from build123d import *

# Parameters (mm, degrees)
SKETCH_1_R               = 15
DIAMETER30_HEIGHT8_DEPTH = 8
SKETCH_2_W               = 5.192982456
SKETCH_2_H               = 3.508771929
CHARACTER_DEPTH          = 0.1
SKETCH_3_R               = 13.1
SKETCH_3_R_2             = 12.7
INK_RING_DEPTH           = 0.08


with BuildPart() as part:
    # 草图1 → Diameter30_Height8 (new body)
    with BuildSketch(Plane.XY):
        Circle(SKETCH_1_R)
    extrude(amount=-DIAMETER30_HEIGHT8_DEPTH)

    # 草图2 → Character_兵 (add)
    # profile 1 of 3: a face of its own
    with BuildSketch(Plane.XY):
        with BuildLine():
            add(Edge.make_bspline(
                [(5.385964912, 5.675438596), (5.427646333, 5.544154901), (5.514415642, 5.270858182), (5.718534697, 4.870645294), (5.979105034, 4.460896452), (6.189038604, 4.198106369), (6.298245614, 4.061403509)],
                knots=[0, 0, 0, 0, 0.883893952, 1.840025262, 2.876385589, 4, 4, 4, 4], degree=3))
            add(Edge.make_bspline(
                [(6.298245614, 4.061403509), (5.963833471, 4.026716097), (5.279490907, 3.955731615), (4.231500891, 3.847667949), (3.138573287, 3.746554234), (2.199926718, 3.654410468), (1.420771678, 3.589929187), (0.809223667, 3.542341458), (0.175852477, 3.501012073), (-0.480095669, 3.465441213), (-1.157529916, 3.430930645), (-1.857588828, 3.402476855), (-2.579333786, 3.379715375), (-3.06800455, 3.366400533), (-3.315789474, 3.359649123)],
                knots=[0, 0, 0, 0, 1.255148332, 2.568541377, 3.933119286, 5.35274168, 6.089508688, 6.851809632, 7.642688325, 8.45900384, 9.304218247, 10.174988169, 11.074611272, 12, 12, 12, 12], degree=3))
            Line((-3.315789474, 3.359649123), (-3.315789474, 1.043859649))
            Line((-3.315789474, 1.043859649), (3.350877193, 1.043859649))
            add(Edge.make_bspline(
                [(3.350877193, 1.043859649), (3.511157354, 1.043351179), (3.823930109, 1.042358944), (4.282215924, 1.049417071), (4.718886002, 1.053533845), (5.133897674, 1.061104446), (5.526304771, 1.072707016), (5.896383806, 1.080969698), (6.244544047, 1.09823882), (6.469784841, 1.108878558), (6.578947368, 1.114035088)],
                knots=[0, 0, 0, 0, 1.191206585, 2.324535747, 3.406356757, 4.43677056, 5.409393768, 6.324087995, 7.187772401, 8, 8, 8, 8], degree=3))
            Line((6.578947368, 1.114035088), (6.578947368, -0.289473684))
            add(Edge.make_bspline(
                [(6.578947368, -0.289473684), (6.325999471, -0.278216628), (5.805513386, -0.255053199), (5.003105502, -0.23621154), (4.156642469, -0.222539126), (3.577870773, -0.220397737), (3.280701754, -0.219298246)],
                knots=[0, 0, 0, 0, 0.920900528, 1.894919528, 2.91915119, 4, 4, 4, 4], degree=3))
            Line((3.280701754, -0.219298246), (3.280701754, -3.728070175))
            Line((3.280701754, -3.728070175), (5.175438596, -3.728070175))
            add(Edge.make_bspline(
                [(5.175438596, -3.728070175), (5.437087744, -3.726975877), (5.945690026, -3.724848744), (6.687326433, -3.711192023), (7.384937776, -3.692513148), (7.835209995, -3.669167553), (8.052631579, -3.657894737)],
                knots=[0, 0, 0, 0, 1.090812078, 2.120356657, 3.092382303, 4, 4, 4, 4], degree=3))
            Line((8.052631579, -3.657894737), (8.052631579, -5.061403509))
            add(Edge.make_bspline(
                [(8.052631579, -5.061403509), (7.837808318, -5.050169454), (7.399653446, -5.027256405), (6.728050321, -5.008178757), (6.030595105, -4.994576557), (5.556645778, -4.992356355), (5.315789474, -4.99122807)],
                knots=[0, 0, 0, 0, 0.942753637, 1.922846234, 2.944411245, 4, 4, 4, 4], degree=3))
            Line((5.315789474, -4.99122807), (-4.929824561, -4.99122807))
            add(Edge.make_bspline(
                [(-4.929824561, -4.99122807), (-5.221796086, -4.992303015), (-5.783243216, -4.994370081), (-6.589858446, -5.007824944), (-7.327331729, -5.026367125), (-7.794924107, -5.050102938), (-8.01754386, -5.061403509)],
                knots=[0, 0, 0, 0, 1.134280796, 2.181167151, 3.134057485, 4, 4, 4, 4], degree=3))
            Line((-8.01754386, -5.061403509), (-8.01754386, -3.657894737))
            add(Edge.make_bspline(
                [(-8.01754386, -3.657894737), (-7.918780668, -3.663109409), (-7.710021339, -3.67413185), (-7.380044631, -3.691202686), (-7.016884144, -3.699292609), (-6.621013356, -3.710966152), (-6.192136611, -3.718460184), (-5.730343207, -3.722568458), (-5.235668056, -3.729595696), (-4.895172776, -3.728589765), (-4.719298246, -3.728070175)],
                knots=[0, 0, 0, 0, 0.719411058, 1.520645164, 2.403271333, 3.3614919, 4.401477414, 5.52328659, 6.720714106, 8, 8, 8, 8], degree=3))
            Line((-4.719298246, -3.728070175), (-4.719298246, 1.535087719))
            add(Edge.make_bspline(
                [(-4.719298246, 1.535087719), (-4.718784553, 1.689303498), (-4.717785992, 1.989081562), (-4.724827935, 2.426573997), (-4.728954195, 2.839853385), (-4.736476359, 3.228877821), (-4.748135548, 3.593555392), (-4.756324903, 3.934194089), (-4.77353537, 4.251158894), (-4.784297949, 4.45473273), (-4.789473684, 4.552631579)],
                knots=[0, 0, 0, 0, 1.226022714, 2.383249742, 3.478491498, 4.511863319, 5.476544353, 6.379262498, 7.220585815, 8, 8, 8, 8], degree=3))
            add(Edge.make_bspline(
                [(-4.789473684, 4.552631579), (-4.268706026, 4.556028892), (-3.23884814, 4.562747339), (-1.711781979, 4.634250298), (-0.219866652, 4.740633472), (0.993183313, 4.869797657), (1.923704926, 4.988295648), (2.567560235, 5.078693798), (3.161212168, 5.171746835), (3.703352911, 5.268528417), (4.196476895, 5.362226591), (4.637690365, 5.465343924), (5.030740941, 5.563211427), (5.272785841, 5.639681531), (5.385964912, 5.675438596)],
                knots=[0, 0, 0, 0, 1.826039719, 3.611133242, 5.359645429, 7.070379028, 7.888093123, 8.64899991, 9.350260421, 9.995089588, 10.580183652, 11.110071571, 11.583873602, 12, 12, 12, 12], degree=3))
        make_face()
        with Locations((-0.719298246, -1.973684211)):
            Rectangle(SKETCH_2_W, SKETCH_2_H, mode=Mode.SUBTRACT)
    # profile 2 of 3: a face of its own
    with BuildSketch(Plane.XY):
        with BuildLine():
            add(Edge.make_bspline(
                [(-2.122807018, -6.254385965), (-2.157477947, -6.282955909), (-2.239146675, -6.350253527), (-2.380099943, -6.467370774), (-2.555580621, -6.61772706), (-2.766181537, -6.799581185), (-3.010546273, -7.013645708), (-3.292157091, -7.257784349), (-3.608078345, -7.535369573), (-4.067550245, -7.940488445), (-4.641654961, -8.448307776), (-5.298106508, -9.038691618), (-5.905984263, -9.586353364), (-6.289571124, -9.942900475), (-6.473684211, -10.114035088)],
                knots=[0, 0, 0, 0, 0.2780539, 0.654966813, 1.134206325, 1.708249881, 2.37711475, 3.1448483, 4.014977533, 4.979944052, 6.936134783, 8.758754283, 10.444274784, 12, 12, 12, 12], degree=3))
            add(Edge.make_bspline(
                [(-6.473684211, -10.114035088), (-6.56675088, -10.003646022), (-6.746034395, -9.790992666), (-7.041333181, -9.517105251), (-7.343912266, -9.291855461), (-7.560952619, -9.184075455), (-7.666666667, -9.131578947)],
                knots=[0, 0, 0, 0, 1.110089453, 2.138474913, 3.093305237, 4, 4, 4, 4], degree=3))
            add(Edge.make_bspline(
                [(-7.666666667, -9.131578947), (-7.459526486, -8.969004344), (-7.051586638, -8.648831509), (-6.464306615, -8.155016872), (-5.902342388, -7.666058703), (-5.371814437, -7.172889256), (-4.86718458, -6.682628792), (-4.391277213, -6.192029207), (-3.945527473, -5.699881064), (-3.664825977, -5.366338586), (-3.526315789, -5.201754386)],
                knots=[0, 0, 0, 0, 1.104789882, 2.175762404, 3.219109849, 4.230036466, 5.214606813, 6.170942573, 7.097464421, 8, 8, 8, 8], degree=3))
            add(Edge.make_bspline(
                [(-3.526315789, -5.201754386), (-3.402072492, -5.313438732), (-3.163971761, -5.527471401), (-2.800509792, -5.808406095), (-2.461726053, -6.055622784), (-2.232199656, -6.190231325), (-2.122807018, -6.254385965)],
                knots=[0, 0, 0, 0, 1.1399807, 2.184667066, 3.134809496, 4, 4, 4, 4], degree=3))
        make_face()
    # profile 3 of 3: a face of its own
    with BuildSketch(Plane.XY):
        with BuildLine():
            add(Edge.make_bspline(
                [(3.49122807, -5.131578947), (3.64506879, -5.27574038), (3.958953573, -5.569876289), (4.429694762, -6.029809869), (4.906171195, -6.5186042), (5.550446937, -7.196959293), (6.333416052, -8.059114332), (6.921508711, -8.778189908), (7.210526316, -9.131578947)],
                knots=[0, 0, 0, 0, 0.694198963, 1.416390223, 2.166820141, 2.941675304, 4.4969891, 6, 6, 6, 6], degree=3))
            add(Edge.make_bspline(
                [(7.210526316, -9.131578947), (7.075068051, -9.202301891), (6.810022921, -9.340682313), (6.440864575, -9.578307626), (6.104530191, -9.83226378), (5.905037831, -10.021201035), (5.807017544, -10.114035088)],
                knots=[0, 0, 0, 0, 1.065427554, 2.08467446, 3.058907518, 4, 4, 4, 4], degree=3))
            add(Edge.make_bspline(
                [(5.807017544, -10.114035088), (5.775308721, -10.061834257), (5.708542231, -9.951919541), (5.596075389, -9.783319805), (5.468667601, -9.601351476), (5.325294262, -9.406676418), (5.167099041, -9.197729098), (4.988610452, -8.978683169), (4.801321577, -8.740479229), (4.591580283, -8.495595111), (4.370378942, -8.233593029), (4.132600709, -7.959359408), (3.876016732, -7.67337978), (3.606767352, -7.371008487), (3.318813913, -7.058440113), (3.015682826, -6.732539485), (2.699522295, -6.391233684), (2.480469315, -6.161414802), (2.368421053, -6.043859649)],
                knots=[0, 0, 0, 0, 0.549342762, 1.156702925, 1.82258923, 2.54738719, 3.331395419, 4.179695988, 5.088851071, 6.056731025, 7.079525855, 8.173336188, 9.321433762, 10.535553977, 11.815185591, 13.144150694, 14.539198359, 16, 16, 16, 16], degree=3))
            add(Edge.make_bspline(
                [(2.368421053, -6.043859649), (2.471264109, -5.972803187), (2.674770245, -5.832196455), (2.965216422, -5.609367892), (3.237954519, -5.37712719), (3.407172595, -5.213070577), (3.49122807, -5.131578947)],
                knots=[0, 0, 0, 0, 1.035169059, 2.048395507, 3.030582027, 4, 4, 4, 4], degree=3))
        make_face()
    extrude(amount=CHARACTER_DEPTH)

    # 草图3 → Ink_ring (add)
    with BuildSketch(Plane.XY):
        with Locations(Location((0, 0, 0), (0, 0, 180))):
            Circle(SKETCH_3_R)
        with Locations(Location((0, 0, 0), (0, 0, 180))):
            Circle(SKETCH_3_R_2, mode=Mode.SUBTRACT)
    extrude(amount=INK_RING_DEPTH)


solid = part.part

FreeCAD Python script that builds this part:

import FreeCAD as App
import Part
import Sketcher
Q = App.Units.Quantity

doc = App.newDocument("Part")
params = doc.addObject("Spreadsheet::Sheet", "Params")
for row, (alias, value) in enumerate([
    ("sketch1_diameter", "30 mm"),
    ("pad1_length", "8 mm"),
    ("pad2_length", "0.1 mm"),
    ("sketch3_diameter", "26.2 mm"),
    ("sketch3_diameter2", "25.4 mm"),
    ("pad3_length", "0.08 mm"),
], start=1):
    params.set(f"A{row}", alias)
    params.set(f"B{row}", "=" + value)
    params.setAlias(f"B{row}", alias)

body = doc.addObject("PartDesign::Body", "Body")

# Sketch on XY plane
sketch1 = doc.addObject("Sketcher::SketchObject", "Sketch")
body.addObject(sketch1)
sketch1.AttachmentSupport = (doc.XY_Plane, [""])
sketch1.MapMode = "FlatFace"
sketch1.addGeometry(Part.Circle(App.Vector(0, 0, 0), App.Vector(0, 0, 1), 15), False)
sketch1.addConstraint([
    Sketcher.Constraint("Coincident", 0, 3, -1, 1),
    Sketcher.Constraint("Diameter", 0, Q("30 mm")),
])
sketch1.setExpression("Constraints[1]", "Params.sketch1_diameter")
pad1 = doc.addObject("PartDesign::Pad", "Pad")
body.addObject(pad1)
pad1.Profile = sketch1
pad1.setExpression("Length", "Params.pad1_length")
pad1.Reversed = True

# Sketch on XY plane
sketch2 = doc.addObject("Sketcher::SketchObject", "Sketch001")
body.addObject(sketch2)
sketch2.AttachmentSupport = (doc.XY_Plane, [""])
sketch2.MapMode = "FlatFace"
sketch2.addGeometry([
    Part.BSplineCurve([App.Vector(5.385965, 5.675439, 0), App.Vector(5.427646, 5.544155, 0), App.Vector(5.514416, 5.270858, 0), App.Vector(5.718535, 4.870645, 0), App.Vector(5.979105, 4.460896, 0), App.Vector(6.189039, 4.198106, 0), App.Vector(6.298246, 4.061404, 0)], [4, 1, 1, 1, 4], [0, 0.883893952, 1.840025262, 2.876385589, 4], False, 3, [1, 1, 1, 1, 1, 1, 1], False),  # 0
    Part.BSplineCurve([App.Vector(-4.789474, 4.552632, 0), App.Vector(-4.268706, 4.556029, 0), App.Vector(-3.238848, 4.562747, 0), App.Vector(-1.711782, 4.63425, 0), App.Vector(-0.219867, 4.740633, 0), App.Vector(0.993183, 4.869798, 0), App.Vector(1.923705, 4.988296, 0), App.Vector(2.56756, 5.078694, 0), App.Vector(3.161212, 5.171747, 0), App.Vector(3.703353, 5.268528, 0), App.Vector(4.196477, 5.362227, 0), App.Vector(4.63769, 5.465344, 0), App.Vector(5.030741, 5.563211, 0), App.Vector(5.272786, 5.639682, 0), App.Vector(5.385965, 5.675439, 0)], [4, 1, 1, 1, 1, 1, 1, 1, 1, 1, 1, 1, 4], [0, 1.826039719, 3.611133242, 5.359645429, 7.070379028, 7.888093123, 8.64899991, 9.350260421, 9.995089588, 10.580183652, 11.110071571, 11.583873602, 12], False, 3, [1, 1, 1, 1, 1, 1, 1, 1, 1, 1, 1, 1, 1, 1, 1], False),  # 1
    Part.BSplineCurve([App.Vector(-4.719298, 1.535088, 0), App.Vector(-4.718785, 1.689303, 0), App.Vector(-4.717786, 1.989082, 0), App.Vector(-4.724828, 2.426574, 0), App.Vector(-4.728954, 2.839853, 0), App.Vector(-4.736476, 3.228878, 0), App.Vector(-4.748136, 3.593555, 0), App.Vector(-4.756325, 3.934194, 0), App.Vector(-4.773535, 4.251159, 0), App.Vector(-4.784298, 4.454733, 0), App.Vector(-4.789474, 4.552632, 0)], [4, 1, 1, 1, 1, 1, 1, 1, 4], [0, 1.226022714, 2.383249742, 3.478491498, 4.511863319, 5.476544353, 6.379262498, 7.220585815, 8], False, 3, [1, 1, 1, 1, 1, 1, 1, 1, 1, 1, 1], False),  # 2
    Part.LineSegment(App.Vector(-4.719298, 1.535088, 0), App.Vector(-4.719298, -3.72807, 0)),  # 3
    Part.BSplineCurve([App.Vector(-8.017544, -3.657895, 0), App.Vector(-7.918781, -3.663109, 0), App.Vector(-7.710021, -3.674132, 0), App.Vector(-7.380045, -3.691203, 0), App.Vector(-7.016884, -3.699293, 0), App.Vector(-6.621013, -3.710966, 0), App.Vector(-6.192137, -3.71846, 0), App.Vector(-5.730343, -3.722568, 0), App.Vector(-5.235668, -3.729596, 0), App.Vector(-4.895173, -3.72859, 0), App.Vector(-4.719298, -3.72807, 0)], [4, 1, 1, 1, 1, 1, 1, 1, 4], [0, 0.719411058, 1.520645164, 2.403271333, 3.3614919, 4.401477414, 5.52328659, 6.720714106, 8], False, 3, [1, 1, 1, 1, 1, 1, 1, 1, 1, 1, 1], False),  # 4
    Part.LineSegment(App.Vector(-8.017544, -3.657895, 0), App.Vector(-8.017544, -5.061404, 0)),  # 5
    Part.BSplineCurve([App.Vector(-4.929825, -4.991228, 0), App.Vector(-5.221796, -4.992303, 0), App.Vector(-5.783243, -4.99437, 0), App.Vector(-6.589858, -5.007825, 0), App.Vector(-7.327332, -5.026367, 0), App.Vector(-7.794924, -5.050103, 0), App.Vector(-8.017544, -5.061404, 0)], [4, 1, 1, 1, 4], [0, 1.134280796, 2.181167151, 3.134057485, 4], False, 3, [1, 1, 1, 1, 1, 1, 1], False),  # 6
    Part.LineSegment(App.Vector(-4.929825, -4.991228, 0), App.Vector(5.315789, -4.991228, 0)),  # 7
    Part.BSplineCurve([App.Vector(8.052632, -5.061404, 0), App.Vector(7.837808, -5.050169, 0), App.Vector(7.399653, -5.027256, 0), App.Vector(6.72805, -5.008179, 0), App.Vector(6.030595, -4.994577, 0), App.Vector(5.556646, -4.992356, 0), App.Vector(5.315789, -4.991228, 0)], [4, 1, 1, 1, 4], [0, 0.942753637, 1.922846234, 2.944411245, 4], False, 3, [1, 1, 1, 1, 1, 1, 1], False),  # 8
    Part.LineSegment(App.Vector(8.052632, -5.061404, 0), App.Vector(8.052632, -3.657895, 0)),  # 9
    Part.BSplineCurve([App.Vector(5.175439, -3.72807, 0), App.Vector(5.437088, -3.726976, 0), App.Vector(5.94569, -3.724849, 0), App.Vector(6.687326, -3.711192, 0), App.Vector(7.384938, -3.692513, 0), App.Vector(7.83521, -3.669168, 0), App.Vector(8.052632, -3.657895, 0)], [4, 1, 1, 1, 4], [0, 1.090812078, 2.120356657, 3.092382303, 4], False, 3, [1, 1, 1, 1, 1, 1, 1], False),  # 10
    Part.LineSegment(App.Vector(5.175439, -3.72807, 0), App.Vector(3.280702, -3.72807, 0)),  # 11
    Part.LineSegment(App.Vector(3.280702, -3.72807, 0), App.Vector(3.280702, -0.219298, 0)),  # 12
    Part.BSplineCurve([App.Vector(6.578947, -0.289474, 0), App.Vector(6.325999, -0.278217, 0), App.Vector(5.805513, -0.255053, 0), App.Vector(5.003106, -0.236212, 0), App.Vector(4.156642, -0.222539, 0), App.Vector(3.577871, -0.220398, 0), App.Vector(3.280702, -0.219298, 0)], [4, 1, 1, 1, 4], [0, 0.920900528, 1.894919528, 2.91915119, 4], False, 3, [1, 1, 1, 1, 1, 1, 1], False),  # 13
    Part.LineSegment(App.Vector(6.578947, -0.289474, 0), App.Vector(6.578947, 1.114035, 0)),  # 14
    Part.BSplineCurve([App.Vector(3.350877, 1.04386, 0), App.Vector(3.511157, 1.043351, 0), App.Vector(3.82393, 1.042359, 0), App.Vector(4.282216, 1.049417, 0), App.Vector(4.718886, 1.053534, 0), App.Vector(5.133898, 1.061104, 0), App.Vector(5.526305, 1.072707, 0), App.Vector(5.896384, 1.08097, 0), App.Vector(6.244544, 1.098239, 0), App.Vector(6.469785, 1.108879, 0), App.Vector(6.578947, 1.114035, 0)], [4, 1, 1, 1, 1, 1, 1, 1, 4], [0, 1.191206585, 2.324535747, 3.406356757, 4.43677056, 5.409393768, 6.324087995, 7.187772401, 8], False, 3, [1, 1, 1, 1, 1, 1, 1, 1, 1, 1, 1], False),  # 15
    Part.LineSegment(App.Vector(3.350877, 1.04386, 0), App.Vector(-3.315789, 1.04386, 0)),  # 16
    Part.LineSegment(App.Vector(-3.315789, 1.04386, 0), App.Vector(-3.315789, 3.359649, 0)),  # 17
    Part.BSplineCurve([App.Vector(6.298246, 4.061404, 0), App.Vector(5.963833, 4.026716, 0), App.Vector(5.279491, 3.955732, 0), App.Vector(4.231501, 3.847668, 0), App.Vector(3.138573, 3.746554, 0), App.Vector(2.199927, 3.65441, 0), App.Vector(1.420772, 3.589929, 0), App.Vector(0.809224, 3.542341, 0), App.Vector(0.175852, 3.501012, 0), App.Vector(-0.480096, 3.465441, 0), App.Vector(-1.15753, 3.430931, 0), App.Vector(-1.857589, 3.402477, 0), App.Vector(-2.579334, 3.379715, 0), App.Vector(-3.068005, 3.366401, 0), App.Vector(-3.315789, 3.359649, 0)], [4, 1, 1, 1, 1, 1, 1, 1, 1, 1, 1, 1, 4], [0, 1.255148332, 2.568541377, 3.933119286, 5.35274168, 6.089508688, 6.851809632, 7.642688325, 8.45900384, 9.304218247, 10.174988169, 11.074611272, 12], False, 3, [1, 1, 1, 1, 1, 1, 1, 1, 1, 1, 1, 1, 1, 1, 1], False),  # 18
    Part.LineSegment(App.Vector(-3.315789, -3.72807, 0), App.Vector(-3.315789, -0.219298, 0)),  # 19
    Part.LineSegment(App.Vector(-3.315789, -0.219298, 0), App.Vector(1.877193, -0.219298, 0)),  # 20
    Part.LineSegment(App.Vector(1.877193, -0.219298, 0), App.Vector(1.877193, -3.72807, 0)),  # 21
    Part.LineSegment(App.Vector(1.877193, -3.72807, 0), App.Vector(-3.315789, -3.72807, 0)),  # 22
    Part.BSplineCurve([App.Vector(-2.122807, -6.254386, 0), App.Vector(-2.157478, -6.282956, 0), App.Vector(-2.239147, -6.350254, 0), App.Vector(-2.3801, -6.467371, 0), App.Vector(-2.555581, -6.617727, 0), App.Vector(-2.766182, -6.799581, 0), App.Vector(-3.010546, -7.013646, 0), App.Vector(-3.292157, -7.257784, 0), App.Vector(-3.608078, -7.53537, 0), App.Vector(-4.06755, -7.940488, 0), App.Vector(-4.641655, -8.448308, 0), App.Vector(-5.298107, -9.038692, 0), App.Vector(-5.905984, -9.586353, 0), App.Vector(-6.289571, -9.9429, 0), App.Vector(-6.473684, -10.114035, 0)], [4, 1, 1, 1, 1, 1, 1, 1, 1, 1, 1, 1, 4], [0, 0.2780539, 0.654966813, 1.134206325, 1.708249881, 2.37711475, 3.1448483, 4.014977533, 4.979944052, 6.936134783, 8.758754283, 10.444274784, 12], False, 3, [1, 1, 1, 1, 1, 1, 1, 1, 1, 1, 1, 1, 1, 1, 1], False),  # 23
    Part.BSplineCurve([App.Vector(-3.526316, -5.201754, 0), App.Vector(-3.402072, -5.313439, 0), App.Vector(-3.163972, -5.527471, 0), App.Vector(-2.80051, -5.808406, 0), App.Vector(-2.461726, -6.055623, 0), App.Vector(-2.2322, -6.190231, 0), App.Vector(-2.122807, -6.254386, 0)], [4, 1, 1, 1, 4], [0, 1.1399807, 2.184667066, 3.134809496, 4], False, 3, [1, 1, 1, 1, 1, 1, 1], False),  # 24
    Part.BSplineCurve([App.Vector(-7.666667, -9.131579, 0), App.Vector(-7.459526, -8.969004, 0), App.Vector(-7.051587, -8.648832, 0), App.Vector(-6.464307, -8.155017, 0), App.Vector(-5.902342, -7.666059, 0), App.Vector(-5.371814, -7.172889, 0), App.Vector(-4.867185, -6.682629, 0), App.Vector(-4.391277, -6.192029, 0), App.Vector(-3.945527, -5.699881, 0), App.Vector(-3.664826, -5.366339, 0), App.Vector(-3.526316, -5.201754, 0)], [4, 1, 1, 1, 1, 1, 1, 1, 4], [0, 1.104789882, 2.175762404, 3.219109849, 4.230036466, 5.214606813, 6.170942573, 7.097464421, 8], False, 3, [1, 1, 1, 1, 1, 1, 1, 1, 1, 1, 1], False),  # 25
    Part.BSplineCurve([App.Vector(-6.473684, -10.114035, 0), App.Vector(-6.566751, -10.003646, 0), App.Vector(-6.746034, -9.790993, 0), App.Vector(-7.041333, -9.517105, 0), App.Vector(-7.343912, -9.291855, 0), App.Vector(-7.560953, -9.184075, 0), App.Vector(-7.666667, -9.131579, 0)], [4, 1, 1, 1, 4], [0, 1.110089453, 2.138474913, 3.093305237, 4], False, 3, [1, 1, 1, 1, 1, 1, 1], False),  # 26
    Part.BSplineCurve([App.Vector(3.491228, -5.131579, 0), App.Vector(3.645069, -5.27574, 0), App.Vector(3.958954, -5.569876, 0), App.Vector(4.429695, -6.02981, 0), App.Vector(4.906171, -6.518604, 0), App.Vector(5.550447, -7.196959, 0), App.Vector(6.333416, -8.059114, 0), App.Vector(6.921509, -8.77819, 0), App.Vector(7.210526, -9.131579, 0)], [4, 1, 1, 1, 1, 1, 4], [0, 0.694198963, 1.416390223, 2.166820141, 2.941675304, 4.4969891, 6], False, 3, [1, 1, 1, 1, 1, 1, 1, 1, 1], False),  # 27
    Part.BSplineCurve([App.Vector(2.368421, -6.04386, 0), App.Vector(2.471264, -5.972803, 0), App.Vector(2.67477, -5.832196, 0), App.Vector(2.965216, -5.609368, 0), App.Vector(3.237955, -5.377127, 0), App.Vector(3.407173, -5.213071, 0), App.Vector(3.491228, -5.131579, 0)], [4, 1, 1, 1, 4], [0, 1.035169059, 2.048395507, 3.030582027, 4], False, 3, [1, 1, 1, 1, 1, 1, 1], False),  # 28
    Part.BSplineCurve([App.Vector(5.807018, -10.114035, 0), App.Vector(5.775309, -10.061834, 0), App.Vector(5.708542, -9.95192, 0), App.Vector(5.596075, -9.78332, 0), App.Vector(5.468668, -9.601351, 0), App.Vector(5.325294, -9.406676, 0), App.Vector(5.167099, -9.197729, 0), App.Vector(4.98861, -8.978683, 0), App.Vector(4.801322, -8.740479, 0), App.Vector(4.59158, -8.495595, 0), App.Vector(4.370379, -8.233593, 0), App.Vector(4.132601, -7.959359, 0), App.Vector(3.876017, -7.67338, 0), App.Vector(3.606767, -7.371008, 0), App.Vector(3.318814, -7.05844, 0), App.Vector(3.015683, -6.732539, 0), App.Vector(2.699522, -6.391234, 0), App.Vector(2.480469, -6.161415, 0), App.Vector(2.368421, -6.04386, 0)], [4, 1, 1, 1, 1, 1, 1, 1, 1, 1, 1, 1, 1, 1, 1, 1, 4], [0, 0.549342762, 1.156702925, 1.82258923, 2.54738719, 3.331395419, 4.179695988, 5.088851071, 6.056731025, 7.079525855, 8.173336188, 9.321433762, 10.535553977, 11.815185591, 13.144150694, 14.539198359, 16], False, 3, [1, 1, 1, 1, 1, 1, 1, 1, 1, 1, 1, 1, 1, 1, 1, 1, 1, 1, 1], False),  # 29
    Part.BSplineCurve([App.Vector(7.210526, -9.131579, 0), App.Vector(7.075068, -9.202302, 0), App.Vector(6.810023, -9.340682, 0), App.Vector(6.440865, -9.578308, 0), App.Vector(6.10453, -9.832264, 0), App.Vector(5.905038, -10.021201, 0), App.Vector(5.807018, -10.114035, 0)], [4, 1, 1, 1, 4], [0, 1.065427554, 2.08467446, 3.058907518, 4], False, 3, [1, 1, 1, 1, 1, 1, 1], False),  # 30
], False)
sketch2.addConstraint([
    Sketcher.Constraint("Block", 0),
    Sketcher.Constraint("Block", 1),
    Sketcher.Constraint("Block", 2),
    Sketcher.Constraint("Block", 4),
    Sketcher.Constraint("Block", 6),
    Sketcher.Constraint("Block", 8),
    Sketcher.Constraint("Block", 10),
    Sketcher.Constraint("Block", 13),
    Sketcher.Constraint("Block", 15),
    Sketcher.Constraint("Block", 18),
    Sketcher.Constraint("Block", 23),
    Sketcher.Constraint("Block", 24),
    Sketcher.Constraint("Block", 25),
    Sketcher.Constraint("Block", 26),
    Sketcher.Constraint("Block", 27),
    Sketcher.Constraint("Block", 28),
    Sketcher.Constraint("Block", 29),
    Sketcher.Constraint("Block", 30),
    Sketcher.Constraint("Coincident", 2, 1, 3, 1),
    Sketcher.Constraint("Coincident", 3, 2, 4, 2),
    Sketcher.Constraint("Coincident", 4, 1, 5, 1),
    Sketcher.Constraint("Coincident", 5, 2, 6, 2),
    Sketcher.Constraint("Coincident", 6, 1, 7, 1),
    Sketcher.Constraint("Coincident", 7, 2, 8, 2),
    Sketcher.Constraint("Coincident", 8, 1, 9, 1),
    Sketcher.Constraint("Coincident", 9, 2, 10, 2),
    Sketcher.Constraint("Coincident", 10, 1, 11, 1),
    Sketcher.Constraint("Coincident", 11, 2, 12, 1),
    Sketcher.Constraint("Coincident", 12, 2, 13, 2),
    Sketcher.Constraint("Coincident", 13, 1, 14, 1),
    Sketcher.Constraint("Coincident", 14, 2, 15, 2),
    Sketcher.Constraint("Coincident", 15, 1, 16, 1),
    Sketcher.Constraint("Coincident", 16, 2, 17, 1),
    Sketcher.Constraint("Coincident", 17, 2, 18, 2),
    Sketcher.Constraint("Coincident", 19, 2, 20, 1),
    Sketcher.Constraint("Coincident", 20, 2, 21, 1),
    Sketcher.Constraint("Coincident", 21, 2, 22, 1),
    Sketcher.Constraint("Coincident", 22, 2, 19, 1),
    Sketcher.Constraint("Horizontal", 11),
    Sketcher.Constraint("Vertical", 12),
    Sketcher.Constraint("Horizontal", 16),
    Sketcher.Constraint("Vertical", 17),
    Sketcher.Constraint("Vertical", 19),
    Sketcher.Constraint("Horizontal", 20),
    Sketcher.Constraint("Vertical", 21),
    Sketcher.Constraint("Horizontal", 22),
    Sketcher.Constraint("Horizontal", 12, 2, 19, 2),
    Sketcher.Constraint("Horizontal", 11, 2, 21, 2),
    Sketcher.Constraint("Vertical", 17, 2, 19, 2),
    Sketcher.Constraint("DistanceX", 20, 1, 20, 2, Q("5.192982 mm")),
])
pad2 = doc.addObject("PartDesign::Pad", "Pad001")
body.addObject(pad2)
pad2.Profile = sketch2
pad2.setExpression("Length", "Params.pad2_length")

# Sketch on XY plane
sketch3 = doc.addObject("Sketcher::SketchObject", "Sketch002")
body.addObject(sketch3)
sketch3.AttachmentSupport = (doc.XY_Plane, [""])
sketch3.MapMode = "FlatFace"
sketch3.addGeometry([
    Part.Circle(App.Vector(0, 0, 0), App.Vector(0, 0, 1), 13),
    Part.Circle(App.Vector(0, 0, 0), App.Vector(0, 0, 1), 13),
], False)
sketch3.addConstraint([
    Sketcher.Constraint("Coincident", 0, 3, -1, 1),
    Sketcher.Constraint("Coincident", 1, 3, -1, 1),
    Sketcher.Constraint("Diameter", 0, Q("26.2 mm")),
    Sketcher.Constraint("Diameter", 1, Q("25.4 mm")),
])
sketch3.setExpression("Constraints[2]", "Params.sketch3_diameter")
sketch3.setExpression("Constraints[3]", "Params.sketch3_diameter2")
pad3 = doc.addObject("PartDesign::Pad", "Pad002")
body.addObject(pad3)
pad3.Profile = sketch3
pad3.setExpression("Length", "Params.pad3_length")

doc.recompute()
